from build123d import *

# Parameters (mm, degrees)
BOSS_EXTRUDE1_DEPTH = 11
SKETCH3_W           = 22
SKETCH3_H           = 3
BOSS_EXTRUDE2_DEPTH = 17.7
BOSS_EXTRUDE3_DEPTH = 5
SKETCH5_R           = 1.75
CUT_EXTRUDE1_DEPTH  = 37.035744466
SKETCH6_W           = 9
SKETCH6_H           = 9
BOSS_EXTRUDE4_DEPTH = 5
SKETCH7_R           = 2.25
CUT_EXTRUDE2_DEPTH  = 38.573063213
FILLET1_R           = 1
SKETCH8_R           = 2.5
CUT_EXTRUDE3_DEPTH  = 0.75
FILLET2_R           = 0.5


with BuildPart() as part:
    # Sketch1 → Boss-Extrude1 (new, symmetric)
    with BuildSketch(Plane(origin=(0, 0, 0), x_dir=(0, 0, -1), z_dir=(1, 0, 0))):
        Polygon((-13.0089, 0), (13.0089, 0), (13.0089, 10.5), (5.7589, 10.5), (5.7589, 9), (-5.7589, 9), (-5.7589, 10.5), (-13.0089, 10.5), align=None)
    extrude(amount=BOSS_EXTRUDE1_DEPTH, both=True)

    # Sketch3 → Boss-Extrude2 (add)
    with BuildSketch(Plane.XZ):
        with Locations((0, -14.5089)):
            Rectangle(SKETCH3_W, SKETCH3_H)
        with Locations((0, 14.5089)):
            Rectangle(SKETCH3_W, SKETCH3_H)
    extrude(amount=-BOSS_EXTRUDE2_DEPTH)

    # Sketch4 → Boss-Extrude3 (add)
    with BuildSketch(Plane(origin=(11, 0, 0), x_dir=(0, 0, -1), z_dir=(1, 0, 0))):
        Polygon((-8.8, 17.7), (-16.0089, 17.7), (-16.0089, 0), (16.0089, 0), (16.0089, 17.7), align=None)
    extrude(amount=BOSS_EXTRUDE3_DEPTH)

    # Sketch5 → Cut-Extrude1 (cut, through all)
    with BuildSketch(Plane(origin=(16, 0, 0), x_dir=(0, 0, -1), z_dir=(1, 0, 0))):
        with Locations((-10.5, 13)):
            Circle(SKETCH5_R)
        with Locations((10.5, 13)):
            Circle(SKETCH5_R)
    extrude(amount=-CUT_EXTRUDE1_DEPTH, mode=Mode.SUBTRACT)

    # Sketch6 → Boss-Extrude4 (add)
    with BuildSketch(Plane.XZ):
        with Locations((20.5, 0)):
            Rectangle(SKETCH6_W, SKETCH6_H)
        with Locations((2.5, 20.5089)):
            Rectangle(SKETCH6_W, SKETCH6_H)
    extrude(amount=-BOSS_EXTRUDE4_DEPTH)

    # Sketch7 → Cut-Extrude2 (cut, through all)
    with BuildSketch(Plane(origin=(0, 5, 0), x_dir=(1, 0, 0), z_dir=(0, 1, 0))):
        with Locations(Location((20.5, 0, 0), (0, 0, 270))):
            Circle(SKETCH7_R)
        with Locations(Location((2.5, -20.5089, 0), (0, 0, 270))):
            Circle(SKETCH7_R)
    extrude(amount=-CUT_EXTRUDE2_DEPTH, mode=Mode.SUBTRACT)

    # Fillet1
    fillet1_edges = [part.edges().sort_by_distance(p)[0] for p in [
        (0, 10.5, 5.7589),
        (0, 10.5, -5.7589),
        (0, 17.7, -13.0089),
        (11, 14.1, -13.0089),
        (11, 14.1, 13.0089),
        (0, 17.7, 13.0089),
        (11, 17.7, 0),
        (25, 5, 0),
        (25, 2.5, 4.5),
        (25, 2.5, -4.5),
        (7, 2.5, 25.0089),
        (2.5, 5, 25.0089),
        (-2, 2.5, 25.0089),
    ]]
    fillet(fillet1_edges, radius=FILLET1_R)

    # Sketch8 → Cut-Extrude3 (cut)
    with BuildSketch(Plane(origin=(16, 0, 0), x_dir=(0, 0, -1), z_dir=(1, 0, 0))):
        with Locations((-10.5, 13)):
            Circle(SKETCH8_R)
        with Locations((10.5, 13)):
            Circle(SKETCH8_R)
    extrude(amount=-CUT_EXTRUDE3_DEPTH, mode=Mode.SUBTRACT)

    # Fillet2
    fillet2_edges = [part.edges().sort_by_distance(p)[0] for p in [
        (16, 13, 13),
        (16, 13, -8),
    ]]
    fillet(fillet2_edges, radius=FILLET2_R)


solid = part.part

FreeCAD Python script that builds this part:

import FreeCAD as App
import Part
import Sketcher
from FreeCAD import Vector
Q = App.Units.Quantity


def edges_at(feature, points):
    """Names of the edges that pass closest to the given points."""
    edges = feature.Shape.Edges
    near = lambda p: min(range(len(edges)), key=lambda i: edges[i].distToShape(Part.Vertex(*p))[0])
    return sorted({f"Edge{near(p) + 1}" for p in points})

doc = App.newDocument("Part")
body = doc.addObject("PartDesign::Body", "Body")

sketch1 = doc.addObject("Sketcher::SketchObject", "Sketch")
body.addObject(sketch1)
sketch1.AttachmentSupport = (doc.YZ_Plane, [""])
sketch1.MapMode = "FlatFace"
sketch1.addGeometry([
    Part.LineSegment(Vector(0, 13.0089, 0), Vector(0, -13.0089, 0)),
    Part.LineSegment(Vector(0, -13.0089, 0), Vector(10.5, -13.0089, 0)),
    Part.LineSegment(Vector(10.5, -13.0089, 0), Vector(10.5, -5.7589, 0)),
    Part.LineSegment(Vector(10.5, -5.7589, 0), Vector(9, -5.7589, 0)),
    Part.LineSegment(Vector(9, -5.7589, 0), Vector(9, 5.7589, 0)),
    Part.LineSegment(Vector(9, 5.7589, 0), Vector(10.5, 5.7589, 0)),
    Part.LineSegment(Vector(10.5, 5.7589, 0), Vector(10.5, 13.0089, 0)),
    Part.LineSegment(Vector(10.5, 13.0089, 0), Vector(0, 13.0089, 0)),
], False)
sketch1.addConstraint([
    Sketcher.Constraint("Coincident", 0, 2, 1, 1),
    Sketcher.Constraint("Coincident", 1, 2, 2, 1),
    Sketcher.Constraint("Coincident", 2, 2, 3, 1),
    Sketcher.Constraint("Coincident", 3, 2, 4, 1),
    Sketcher.Constraint("Coincident", 4, 2, 5, 1),
    Sketcher.Constraint("Coincident", 5, 2, 6, 1),
    Sketcher.Constraint("Coincident", 6, 2, 7, 1),
    Sketcher.Constraint("Coincident", 7, 2, 0, 1),
    Sketcher.Constraint("Vertical", 0),
    Sketcher.Constraint("Horizontal", 1),
    Sketcher.Constraint("Vertical", 2),
    Sketcher.Constraint("Horizontal", 3),
    Sketcher.Constraint("Vertical", 4),
    Sketcher.Constraint("Horizontal", 5),
    Sketcher.Constraint("Vertical", 6),
    Sketcher.Constraint("Horizontal", 7),
    Sketcher.Constraint("Symmetric", 0, 2, 7, 2, -1, 1),
    Sketcher.Constraint("Symmetric", 2, 2, 5, 2, -1),
    Sketcher.Constraint("DistanceX", 1, 1, 1, 2, Q("10.5 mm")),
    Sketcher.Constraint("DistanceX", 3, 2, 3, 1, Q("1.5 mm")),
    Sketcher.Constraint("DistanceY", 2, 1, 2, 2, Q("7.25 mm")),
    Sketcher.Constraint("DistanceY", 0, 2, 0, 1, Q("26.0178 mm")),
])
pad1 = doc.addObject("PartDesign::Pad", "Pad")
body.addObject(pad1)
pad1.Profile = sketch1
pad1.Length = 22
pad1.Midplane = True

sketch2 = doc.addObject("Sketcher::SketchObject", "Sketch001")
body.addObject(sketch2)
sketch2.AttachmentSupport = (doc.XZ_Plane, [""])
sketch2.MapMode = "FlatFace"
sketch2.addGeometry([
    Part.LineSegment(Vector(-11, -13.0089, 0), Vector(-11, -16.0089, 0)),
    Part.LineSegment(Vector(-11, -16.0089, 0), Vector(11, -16.0089, 0)),
    Part.LineSegment(Vector(11, -16.0089, 0), Vector(11, -13.0089, 0)),
    Part.LineSegment(Vector(11, -13.0089, 0), Vector(-11, -13.0089, 0)),
    Part.LineSegment(Vector(-11, 16.0089, 0), Vector(-11, 13.0089, 0)),
    Part.LineSegment(Vector(-11, 13.0089, 0), Vector(11, 13.0089, 0)),
    Part.LineSegment(Vector(11, 13.0089, 0), Vector(11, 16.0089, 0)),
    Part.LineSegment(Vector(11, 16.0089, 0), Vector(-11, 16.0089, 0)),
], False)
sketch2.addConstraint([
    Sketcher.Constraint("Coincident", 0, 2, 1, 1),
    Sketcher.Constraint("Coincident", 1, 2, 2, 1),
    Sketcher.Constraint("Coincident", 2, 2, 3, 1),
    Sketcher.Constraint("Coincident", 3, 2, 0, 1),
    Sketcher.Constraint("Coincident", 4, 2, 5, 1),
    Sketcher.Constraint("Coincident", 5, 2, 6, 1),
    Sketcher.Constraint("Coincident", 6, 2, 7, 1),
    Sketcher.Constraint("Coincident", 7, 2, 4, 1),
    Sketcher.Constraint("Vertical", 0),
    Sketcher.Constraint("Horizontal", 1),
    Sketcher.Constraint("Vertical", 2),
    Sketcher.Constraint("Horizontal", 3),
    Sketcher.Constraint("Vertical", 4),
    Sketcher.Constraint("Horizontal", 5),
    Sketcher.Constraint("Vertical", 6),
    Sketcher.Constraint("Horizontal", 7),
    Sketcher.Constraint("Symmetric", 2, 2, 4, 2, -1, 1),
    Sketcher.Constraint("Symmetric", 0, 2, 6, 2, -1, 1),
    Sketcher.Constraint("Vertical", 3, 2, 4, 2),
    Sketcher.Constraint("DistanceX", 1, 1, 1, 2, Q("22 mm")),
    Sketcher.Constraint("DistanceY", 0, 2, 0, 1, Q("3 mm")),
    Sketcher.Constraint("DistanceY", 0, 2, -1, 1, Q("16.0089 mm")),
])
pad2 = doc.addObject("PartDesign::Pad", "Pad001")
body.addObject(pad2)
pad2.Profile = sketch2
pad2.Length = 17.7
pad2.Reversed = True

sketch3 = doc.addObject("Sketcher::SketchObject", "Sketch002")
body.addObject(sketch3)
sketch3.AttachmentSupport = (doc.YZ_Plane, [""])
sketch3.MapMode = "FlatFace"
sketch3.AttachmentOffset = App.Placement(Vector(0, 0, 11), App.Rotation())
sketch3.addGeometry([
    Part.LineSegment(Vector(17.7, 16.0089, 0), Vector(0, 16.0089, 0)),
    Part.LineSegment(Vector(0, 16.0089, 0), Vector(0, -16.0089, 0)),
    Part.LineSegment(Vector(0, -16.0089, 0), Vector(17.7, -16.0089, 0)),
    Part.LineSegment(Vector(17.7, -16.0089, 0), Vector(17.7, 16.0089, 0)),
], False)
sketch3.addConstraint([
    Sketcher.Constraint("Coincident", 0, 2, 1, 1),
    Sketcher.Constraint("Coincident", 1, 2, 2, 1),
    Sketcher.Constraint("Coincident", 2, 2, 3, 1),
    Sketcher.Constraint("Coincident", 3, 2, 0, 1),
    Sketcher.Constraint("Horizontal", 0),
    Sketcher.Constraint("Vertical", 1),
    Sketcher.Constraint("Horizontal", 2),
    Sketcher.Constraint("Vertical", 3),
    Sketcher.Constraint("Symmetric", 0, 2, 1, 2, -1, 1),
    Sketcher.Constraint("DistanceX", 0, 2, 0, 1, Q("17.7 mm")),
    Sketcher.Constraint("DistanceY", 1, 2, 1, 1, Q("32.0178 mm")),
])
pad3 = doc.addObject("PartDesign::Pad", "Pad002")
body.addObject(pad3)
pad3.Profile = sketch3
pad3.Length = 5

sketch4 = doc.addObject("Sketcher::SketchObject", "Sketch003")
body.addObject(sketch4)
sketch4.AttachmentSupport = (doc.YZ_Plane, [""])
sketch4.MapMode = "FlatFace"
sketch4.AttachmentOffset = App.Placement(Vector(0, 0, 16), App.Rotation())
sketch4.addGeometry([
    Part.Circle(Vector(13, 10.5, 0), Vector(0, 0, 1), 1.75),
    Part.Circle(Vector(13, -10.5, 0), Vector(0, 0, 1), 1.75),
], False)
sketch4.addConstraint([
    Sketcher.Constraint("Equal", 0, 1),
    Sketcher.Constraint("Symmetric", 0, 3, 1, 3, -1),
    Sketcher.Constraint("Diameter", 0, Q("3.5 mm")),
    Sketcher.Constraint("DistanceX", -1, 1, 0, 3, Q("13 mm")),
    Sketcher.Constraint("DistanceY", 1, 3, 0, 3, Q("21 mm")),
])
pocket1 = doc.addObject("PartDesign::Pocket", "Pocket")
body.addObject(pocket1)
pocket1.Profile = sketch4
pocket1.Type = "ThroughAll"

sketch5 = doc.addObject("Sketcher::SketchObject", "Sketch004")
body.addObject(sketch5)
sketch5.AttachmentSupport = (doc.XZ_Plane, [""])
sketch5.MapMode = "FlatFace"
sketch5.addGeometry([
    Part.LineSegment(Vector(16, 4.5, 0), Vector(16, -4.5, 0)),
    Part.LineSegment(Vector(16, -4.5, 0), Vector(25, -4.5, 0)),
    Part.LineSegment(Vector(25, -4.5, 0), Vector(25, 4.5, 0)),
    Part.LineSegment(Vector(25, 4.5, 0), Vector(16, 4.5, 0)),
    Part.LineSegment(Vector(-2, 25.0089, 0), Vector(-2, 16.0089, 0)),
    Part.LineSegment(Vector(-2, 16.0089, 0), Vector(7, 16.0089, 0)),
    Part.LineSegment(Vector(7, 16.0089, 0), Vector(7, 25.0089, 0)),
    Part.LineSegment(Vector(7, 25.0089, 0), Vector(-2, 25.0089, 0)),
], False)
sketch5.addConstraint([
    Sketcher.Constraint("Coincident", 0, 2, 1, 1),
    Sketcher.Constraint("Coincident", 1, 2, 2, 1),
    Sketcher.Constraint("Coincident", 2, 2, 3, 1),
    Sketcher.Constraint("Coincident", 3, 2, 0, 1),
    Sketcher.Constraint("Coincident", 4, 2, 5, 1),
    Sketcher.Constraint("Coincident", 5, 2, 6, 1),
    Sketcher.Constraint("Coincident", 6, 2, 7, 1),
    Sketcher.Constraint("Coincident", 7, 2, 4, 1),
    Sketcher.Constraint("Vertical", 0),
    Sketcher.Constraint("Horizontal", 1),
    Sketcher.Constraint("Vertical", 2),
    Sketcher.Constraint("Horizontal", 3),
    Sketcher.Constraint("Vertical", 4),
    Sketcher.Constraint("Horizontal", 5),
    Sketcher.Constraint("Vertical", 6),
    Sketcher.Constraint("Horizontal", 7),
    Sketcher.Constraint("Equal", 3, 5),
    Sketcher.Constraint("Equal", 7, 0),
    Sketcher.Constraint("Equal", 2, 4),
    Sketcher.Constraint("DistanceX", 1, 1, 1, 2, Q("9 mm")),
    Sketcher.Constraint("DistanceX", -1, 1, 0, 2, Q("16 mm")),
    Sketcher.Constraint("DistanceX", 4, 2, -1, 1, Q("2 mm")),
    Sketcher.Constraint("DistanceY", 0, 2, -1, 1, Q("4.5 mm")),
    Sketcher.Constraint("DistanceY", -1, 1, 4, 2, Q("16.0089 mm")),
])
pad4 = doc.addObject("PartDesign::Pad", "Pad003")
body.addObject(pad4)
pad4.Profile = sketch5
pad4.Length = 5
pad4.Reversed = True

sketch6 = doc.addObject("Sketcher::SketchObject", "Sketch005")
body.addObject(sketch6)
sketch6.AttachmentSupport = (doc.XZ_Plane, [""])
sketch6.MapMode = "FlatFace"
sketch6.AttachmentOffset = App.Placement(Vector(0, 0, -5), App.Rotation())
sketch6.addGeometry([
    Part.Circle(Vector(20.5, 0, 0), Vector(0, 0, 1), 2.25),
    Part.Circle(Vector(2.5, 20.5089, 0), Vector(0, 0, 1), 2.25),
], False)
sketch6.addConstraint([
    Sketcher.Constraint("Equal", 0, 1),
    Sketcher.Constraint("PointOnObject", 0, 3, -1),
    Sketcher.Constraint("Diameter", 0, Q("4.5 mm")),
    Sketcher.Constraint("DistanceX", 1, 3, 0, 3, Q("18 mm")),
    Sketcher.Constraint("DistanceX", -1, 1, 0, 3, Q("20.5 mm")),
    Sketcher.Constraint("DistanceY", -1, 1, 1, 3, Q("20.5089 mm")),
])
pocket2 = doc.addObject("PartDesign::Pocket", "Pocket001")
body.addObject(pocket2)
pocket2.Profile = sketch6
pocket2.Type = "ThroughAll"
pocket2.Reversed = True
doc.recompute()

fillet = doc.addObject("PartDesign::Fillet", "Fillet")
body.addObject(fillet)
fillet.Base = (pocket2, edges_at(pocket2, [
    (0, 10.5, 5.759),
    (0, 10.5, -5.759),
    (0, 17.7, -13.009),
    (11, 14.1, -13.009),
    (11, 14.1, 13.009),
    (0, 17.7, 13.009),
    (11, 17.7, 0),
    (25, 5, 0),
    (25, 2.5, 4.5),
    (25, 2.5, -4.5),
    (7, 2.5, 25.009),
    (2.5, 5, 25.009),
    (-2, 2.5, 25.009),
]))
fillet.Radius = 1

sketch7 = doc.addObject("Sketcher::SketchObject", "Sketch006")
body.addObject(sketch7)
sketch7.AttachmentSupport = (doc.YZ_Plane, [""])
sketch7.MapMode = "FlatFace"
sketch7.AttachmentOffset = App.Placement(Vector(0, 0, 16), App.Rotation())
sketch7.addGeometry([
    Part.Circle(Vector(13, 10.5, 0), Vector(0, 0, 1), 2.5),
    Part.Circle(Vector(13, -10.5, 0), Vector(0, 0, 1), 2.5),
], False)
sketch7.addConstraint([
    Sketcher.Constraint("Equal", 0, 1),
    Sketcher.Constraint("Symmetric", 0, 3, 1, 3, -1),
    Sketcher.Constraint("Diameter", 0, Q("5 mm")),
    Sketcher.Constraint("DistanceX", -1, 1, 0, 3, Q("13 mm")),
    Sketcher.Constraint("DistanceY", 1, 3, 0, 3, Q("21 mm")),
])
pocket3 = doc.addObject("PartDesign::Pocket", "Pocket002")
body.addObject(pocket3)
pocket3.Profile = sketch7
pocket3.Length = 0.75
doc.recompute()

fillet2 = doc.addObject("PartDesign::Fillet", "Fillet001")
body.addObject(fillet2)
fillet2.Base = (pocket3, edges_at(pocket3, [(16, 13, 13), (16, 13, -8)]))
fillet2.Radius = 0.5

doc.recompute()
